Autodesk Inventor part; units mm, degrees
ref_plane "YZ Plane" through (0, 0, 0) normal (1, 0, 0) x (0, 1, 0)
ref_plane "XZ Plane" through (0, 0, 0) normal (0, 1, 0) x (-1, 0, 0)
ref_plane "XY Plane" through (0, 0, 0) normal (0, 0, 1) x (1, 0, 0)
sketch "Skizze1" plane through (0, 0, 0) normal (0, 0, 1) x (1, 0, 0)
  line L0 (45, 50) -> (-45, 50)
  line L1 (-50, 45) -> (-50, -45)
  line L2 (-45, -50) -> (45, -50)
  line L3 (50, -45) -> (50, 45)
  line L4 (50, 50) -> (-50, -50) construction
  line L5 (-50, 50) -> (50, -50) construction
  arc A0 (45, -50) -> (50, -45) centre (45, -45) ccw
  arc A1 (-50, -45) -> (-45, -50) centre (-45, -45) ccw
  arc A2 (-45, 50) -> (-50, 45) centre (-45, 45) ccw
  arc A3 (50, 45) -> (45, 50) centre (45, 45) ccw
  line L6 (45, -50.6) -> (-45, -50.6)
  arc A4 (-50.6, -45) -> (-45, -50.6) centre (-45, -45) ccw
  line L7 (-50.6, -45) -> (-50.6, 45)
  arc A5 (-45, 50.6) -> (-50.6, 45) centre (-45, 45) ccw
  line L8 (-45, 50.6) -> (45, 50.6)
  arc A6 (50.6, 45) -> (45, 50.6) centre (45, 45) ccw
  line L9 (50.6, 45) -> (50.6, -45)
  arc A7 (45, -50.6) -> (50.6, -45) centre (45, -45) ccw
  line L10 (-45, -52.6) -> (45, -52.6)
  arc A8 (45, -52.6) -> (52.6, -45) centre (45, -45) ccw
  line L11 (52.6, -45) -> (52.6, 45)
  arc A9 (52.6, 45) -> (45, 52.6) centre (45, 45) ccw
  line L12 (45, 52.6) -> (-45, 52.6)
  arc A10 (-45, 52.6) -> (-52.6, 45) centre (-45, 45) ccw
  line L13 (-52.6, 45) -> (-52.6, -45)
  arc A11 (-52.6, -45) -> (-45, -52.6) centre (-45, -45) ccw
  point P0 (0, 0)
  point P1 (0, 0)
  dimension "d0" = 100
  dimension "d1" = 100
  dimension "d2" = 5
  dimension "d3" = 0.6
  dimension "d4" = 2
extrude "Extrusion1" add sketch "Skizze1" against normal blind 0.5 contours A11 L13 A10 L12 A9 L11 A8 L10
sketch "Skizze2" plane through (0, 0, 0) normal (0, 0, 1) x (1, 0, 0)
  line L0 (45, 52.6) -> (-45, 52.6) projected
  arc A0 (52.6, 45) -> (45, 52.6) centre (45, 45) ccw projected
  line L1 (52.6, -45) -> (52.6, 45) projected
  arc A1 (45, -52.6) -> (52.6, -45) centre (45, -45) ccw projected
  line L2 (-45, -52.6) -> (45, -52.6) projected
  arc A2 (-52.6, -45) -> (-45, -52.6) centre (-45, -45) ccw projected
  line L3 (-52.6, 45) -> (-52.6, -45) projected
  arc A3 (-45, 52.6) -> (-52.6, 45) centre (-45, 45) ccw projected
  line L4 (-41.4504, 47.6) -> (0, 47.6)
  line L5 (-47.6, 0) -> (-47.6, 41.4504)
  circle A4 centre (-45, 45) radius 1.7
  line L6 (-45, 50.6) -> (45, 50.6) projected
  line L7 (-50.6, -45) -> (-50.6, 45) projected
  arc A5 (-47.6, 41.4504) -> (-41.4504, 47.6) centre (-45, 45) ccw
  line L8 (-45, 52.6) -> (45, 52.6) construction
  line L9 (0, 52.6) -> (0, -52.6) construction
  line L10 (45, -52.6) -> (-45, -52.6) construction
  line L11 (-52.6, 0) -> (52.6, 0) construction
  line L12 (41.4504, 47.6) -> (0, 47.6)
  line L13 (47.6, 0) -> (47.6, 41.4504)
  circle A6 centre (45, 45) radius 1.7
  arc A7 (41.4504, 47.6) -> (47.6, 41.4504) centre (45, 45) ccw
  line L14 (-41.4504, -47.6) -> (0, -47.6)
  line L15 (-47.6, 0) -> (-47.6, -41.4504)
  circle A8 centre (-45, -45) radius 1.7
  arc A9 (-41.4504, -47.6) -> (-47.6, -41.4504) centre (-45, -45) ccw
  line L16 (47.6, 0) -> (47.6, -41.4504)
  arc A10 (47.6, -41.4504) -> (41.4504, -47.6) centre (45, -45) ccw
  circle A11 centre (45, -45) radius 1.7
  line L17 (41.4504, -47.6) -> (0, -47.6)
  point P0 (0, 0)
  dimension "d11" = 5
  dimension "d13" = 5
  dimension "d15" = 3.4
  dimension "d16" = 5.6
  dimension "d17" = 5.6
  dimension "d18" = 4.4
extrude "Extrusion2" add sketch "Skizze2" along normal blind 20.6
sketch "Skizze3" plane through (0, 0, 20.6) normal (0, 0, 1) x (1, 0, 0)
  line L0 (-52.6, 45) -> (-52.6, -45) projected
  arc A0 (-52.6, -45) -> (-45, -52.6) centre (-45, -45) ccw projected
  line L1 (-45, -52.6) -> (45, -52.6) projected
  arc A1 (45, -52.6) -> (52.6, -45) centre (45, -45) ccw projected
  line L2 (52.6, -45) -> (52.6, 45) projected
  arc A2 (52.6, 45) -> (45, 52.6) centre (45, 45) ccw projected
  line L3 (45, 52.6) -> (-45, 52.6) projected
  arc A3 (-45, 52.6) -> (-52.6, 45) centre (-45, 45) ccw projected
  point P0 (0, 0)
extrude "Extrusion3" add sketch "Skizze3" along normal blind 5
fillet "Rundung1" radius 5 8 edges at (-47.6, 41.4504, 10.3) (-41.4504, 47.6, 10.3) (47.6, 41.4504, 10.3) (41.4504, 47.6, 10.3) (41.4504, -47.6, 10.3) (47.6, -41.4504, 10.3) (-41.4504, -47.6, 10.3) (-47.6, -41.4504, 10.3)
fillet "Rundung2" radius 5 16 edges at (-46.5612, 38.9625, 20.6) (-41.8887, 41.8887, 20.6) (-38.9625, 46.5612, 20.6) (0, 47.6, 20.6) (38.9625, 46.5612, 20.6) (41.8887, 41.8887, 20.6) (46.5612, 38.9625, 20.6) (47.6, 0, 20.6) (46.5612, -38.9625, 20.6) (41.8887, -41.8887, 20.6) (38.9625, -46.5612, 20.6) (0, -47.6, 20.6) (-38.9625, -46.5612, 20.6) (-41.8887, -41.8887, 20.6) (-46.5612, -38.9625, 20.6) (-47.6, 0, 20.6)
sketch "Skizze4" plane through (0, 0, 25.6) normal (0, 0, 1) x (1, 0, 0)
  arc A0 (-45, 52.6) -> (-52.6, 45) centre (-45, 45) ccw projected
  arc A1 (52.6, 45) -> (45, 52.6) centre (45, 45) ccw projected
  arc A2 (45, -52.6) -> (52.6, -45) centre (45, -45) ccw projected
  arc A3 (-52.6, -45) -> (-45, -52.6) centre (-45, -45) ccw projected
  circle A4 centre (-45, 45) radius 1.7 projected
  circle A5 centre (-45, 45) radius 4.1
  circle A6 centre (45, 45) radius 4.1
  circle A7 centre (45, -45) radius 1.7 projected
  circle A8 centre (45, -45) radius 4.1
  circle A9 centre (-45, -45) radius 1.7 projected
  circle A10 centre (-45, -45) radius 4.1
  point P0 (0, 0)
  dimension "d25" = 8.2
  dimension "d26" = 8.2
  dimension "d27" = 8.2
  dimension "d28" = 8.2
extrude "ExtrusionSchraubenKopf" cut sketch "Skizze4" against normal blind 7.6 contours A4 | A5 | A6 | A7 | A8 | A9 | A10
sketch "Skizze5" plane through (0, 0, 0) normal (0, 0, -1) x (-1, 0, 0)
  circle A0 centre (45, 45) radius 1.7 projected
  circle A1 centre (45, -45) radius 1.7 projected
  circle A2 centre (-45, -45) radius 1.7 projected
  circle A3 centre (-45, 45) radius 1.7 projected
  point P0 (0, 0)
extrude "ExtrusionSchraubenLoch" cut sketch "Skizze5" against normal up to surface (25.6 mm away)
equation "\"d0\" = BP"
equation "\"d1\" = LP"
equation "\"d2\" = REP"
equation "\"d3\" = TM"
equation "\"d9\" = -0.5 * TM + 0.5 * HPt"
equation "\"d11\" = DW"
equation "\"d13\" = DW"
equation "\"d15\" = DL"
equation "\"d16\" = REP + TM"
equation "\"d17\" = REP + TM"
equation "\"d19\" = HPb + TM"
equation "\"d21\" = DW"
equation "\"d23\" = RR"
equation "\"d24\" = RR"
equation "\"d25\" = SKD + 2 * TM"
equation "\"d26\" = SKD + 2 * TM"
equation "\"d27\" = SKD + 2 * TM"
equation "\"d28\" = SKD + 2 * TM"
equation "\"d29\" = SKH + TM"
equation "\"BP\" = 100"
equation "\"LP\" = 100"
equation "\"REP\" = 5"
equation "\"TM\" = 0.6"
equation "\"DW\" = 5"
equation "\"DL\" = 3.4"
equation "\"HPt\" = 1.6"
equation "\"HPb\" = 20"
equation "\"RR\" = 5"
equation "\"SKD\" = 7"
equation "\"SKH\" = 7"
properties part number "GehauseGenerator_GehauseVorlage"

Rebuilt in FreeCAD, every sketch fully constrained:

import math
import FreeCAD as App
import Part
import Sketcher


def edges_at(feature, points):
    """Names of the edges that pass closest to the given points."""
    edges = feature.Shape.Edges
    near = lambda p: min(range(len(edges)), key=lambda i: edges[i].distToShape(Part.Vertex(*p))[0])
    return sorted({f"Edge{near(p) + 1}" for p in points})

doc = App.newDocument("Part")
body = doc.addObject("PartDesign::Body", "Body")

sketch1 = body.newObject("Sketcher::SketchObject", "Sketch")
sketch1.AttachmentSupport = (doc.getObject("XY_Plane"), [""])
sketch1.MapMode = "FlatFace"
sketch1.addGeometry(Part.ArcOfCircle(Part.Circle(App.Vector(-45, -45, 0), App.Vector(0, 0, 1), 7.6), math.radians(180), math.radians(270)), False)
sketch1.addGeometry(Part.LineSegment(App.Vector(-45, -52.6, 0), App.Vector(45, -52.6, 0)), False)
sketch1.addGeometry(Part.ArcOfCircle(Part.Circle(App.Vector(45, -45, 0), App.Vector(0, 0, 1), 7.6), math.radians(-90), math.radians(0)), False)
sketch1.addGeometry(Part.LineSegment(App.Vector(52.6, -45, 0), App.Vector(52.6, 45, 0)), False)
sketch1.addGeometry(Part.ArcOfCircle(Part.Circle(App.Vector(45, 45, 0), App.Vector(0, 0, 1), 7.6), math.radians(0), math.radians(90)), False)
sketch1.addGeometry(Part.LineSegment(App.Vector(45, 52.6, 0), App.Vector(-45, 52.6, 0)), False)
sketch1.addGeometry(Part.ArcOfCircle(Part.Circle(App.Vector(-45, 45, 0), App.Vector(0, 0, 1), 7.6), math.radians(90), math.radians(180)), False)
sketch1.addGeometry(Part.LineSegment(App.Vector(-52.6, 45, 0), App.Vector(-52.6, -45, 0)), False)
sketch1.addGeometry(Part.ArcOfCircle(Part.Circle(App.Vector(45, -45, 0), App.Vector(0, 0, 1), 5.6), math.radians(-90), math.radians(0)), False)
sketch1.addGeometry(Part.LineSegment(App.Vector(45, -50.6, 0), App.Vector(-45, -50.6, 0)), False)
sketch1.addGeometry(Part.ArcOfCircle(Part.Circle(App.Vector(-45, -45, 0), App.Vector(0, 0, 1), 5.6), math.radians(180), math.radians(270)), False)
sketch1.addGeometry(Part.LineSegment(App.Vector(-50.6, -45, 0), App.Vector(-50.6, 45, 0)), False)
sketch1.addGeometry(Part.ArcOfCircle(Part.Circle(App.Vector(-45, 45, 0), App.Vector(0, 0, 1), 5.6), math.radians(90), math.radians(180)), False)
sketch1.addGeometry(Part.LineSegment(App.Vector(-45, 50.6, 0), App.Vector(45, 50.6, 0)), False)
sketch1.addGeometry(Part.ArcOfCircle(Part.Circle(App.Vector(45, 45, 0), App.Vector(0, 0, 1), 5.6), math.radians(0), math.radians(90)), False)
sketch1.addGeometry(Part.LineSegment(App.Vector(50.6, 45, 0), App.Vector(50.6, -45, 0)), False)
sketch1.addConstraint(Sketcher.Constraint("Tangent", 0, 2, 1, 1))
sketch1.addConstraint(Sketcher.Constraint("Tangent", 1, 2, 2, 1))
sketch1.addConstraint(Sketcher.Constraint("Tangent", 2, 2, 3, 1))
sketch1.addConstraint(Sketcher.Constraint("Tangent", 3, 2, 4, 1))
sketch1.addConstraint(Sketcher.Constraint("Tangent", 4, 2, 5, 1))
sketch1.addConstraint(Sketcher.Constraint("Tangent", 5, 2, 6, 1))
sketch1.addConstraint(Sketcher.Constraint("Tangent", 6, 2, 7, 1))
sketch1.addConstraint(Sketcher.Constraint("Tangent", 7, 2, 0, 1))
sketch1.addConstraint(Sketcher.Constraint("Tangent", 8, 1, 9, 1))
sketch1.addConstraint(Sketcher.Constraint("Tangent", 9, 2, 10, 2))
sketch1.addConstraint(Sketcher.Constraint("Tangent", 10, 1, 11, 1))
sketch1.addConstraint(Sketcher.Constraint("Tangent", 11, 2, 12, 2))
sketch1.addConstraint(Sketcher.Constraint("Tangent", 12, 1, 13, 1))
sketch1.addConstraint(Sketcher.Constraint("Tangent", 13, 2, 14, 2))
sketch1.addConstraint(Sketcher.Constraint("Tangent", 14, 1, 15, 1))
sketch1.addConstraint(Sketcher.Constraint("Tangent", 15, 2, 8, 2))
sketch1.addConstraint(Sketcher.Constraint("Horizontal", 1))
sketch1.addConstraint(Sketcher.Constraint("Vertical", 3))
sketch1.addConstraint(Sketcher.Constraint("Horizontal", 5))
sketch1.addConstraint(Sketcher.Constraint("Vertical", 7))
sketch1.addConstraint(Sketcher.Constraint("Horizontal", 9))
sketch1.addConstraint(Sketcher.Constraint("Vertical", 11))
sketch1.addConstraint(Sketcher.Constraint("Horizontal", 13))
sketch1.addConstraint(Sketcher.Constraint("Vertical", 15))
sketch1.addConstraint(Sketcher.Constraint("Coincident", 8, 3, 2, 3))
sketch1.addConstraint(Sketcher.Constraint("Coincident", 10, 3, 0, 3))
sketch1.addConstraint(Sketcher.Constraint("Coincident", 12, 3, 6, 3))
sketch1.addConstraint(Sketcher.Constraint("Equal", 0, 2))
sketch1.addConstraint(Sketcher.Constraint("Equal", 2, 4))
sketch1.addConstraint(Sketcher.Constraint("Equal", 4, 6))
sketch1.addConstraint(Sketcher.Constraint("Equal", 12, 14))
sketch1.addConstraint(Sketcher.Constraint("Symmetric", 0, 3, 4, 3, -1, 1))
sketch1.addConstraint(Sketcher.Constraint("Equal", 13, 3))
sketch1.addConstraint(Sketcher.Constraint("DistanceY", 1, 2, 8, 1, 2.0))
sketch1.addConstraint(Sketcher.Constraint("Radius", 0, 7.6))
sketch1.addConstraint(Sketcher.Constraint("DistanceX", 1, 1, 1, 2, 90.0))
pad1 = body.newObject("PartDesign::Pad", "Pad")
pad1.Profile = sketch1
pad1.Length = 0.5
pad1.Reversed = True

sketch2 = body.newObject("Sketcher::SketchObject", "Sketch001")
sketch2.AttachmentSupport = (doc.getObject("XY_Plane"), [""])
sketch2.MapMode = "FlatFace"
sketch2.addGeometry(Part.ArcOfCircle(Part.Circle(App.Vector(45, 45, 0), App.Vector(0, 0, 1), 7.6), math.radians(0), math.radians(90)), False)
sketch2.addGeometry(Part.LineSegment(App.Vector(45, 52.6, 0), App.Vector(-45, 52.6, 0)), False)
sketch2.addGeometry(Part.ArcOfCircle(Part.Circle(App.Vector(-45, 45, 0), App.Vector(0, 0, 1), 7.6), math.radians(90), math.radians(180)), False)
sketch2.addGeometry(Part.LineSegment(App.Vector(-52.6, 45, 0), App.Vector(-52.6, -45, 0)), False)
sketch2.addGeometry(Part.ArcOfCircle(Part.Circle(App.Vector(-45, -45, 0), App.Vector(0, 0, 1), 7.6), math.radians(180), math.radians(270)), False)
sketch2.addGeometry(Part.LineSegment(App.Vector(-45, -52.6, 0), App.Vector(45, -52.6, 0)), False)
sketch2.addGeometry(Part.ArcOfCircle(Part.Circle(App.Vector(45, -45, 0), App.Vector(0, 0, 1), 7.6), math.radians(-90), math.radians(0)), False)
sketch2.addGeometry(Part.LineSegment(App.Vector(52.6, -45, 0), App.Vector(52.6, 45, 0)), False)
sketch2.addGeometry(Part.Circle(App.Vector(-45, -45, 0), App.Vector(0, 0, 1), 1.7), False)
sketch2.addGeometry(Part.Circle(App.Vector(45, -45, 0), App.Vector(0, 0, 1), 1.7), False)
sketch2.addGeometry(Part.Circle(App.Vector(-45, 45, 0), App.Vector(0, 0, 1), 1.7), False)
sketch2.addGeometry(Part.ArcOfCircle(Part.Circle(App.Vector(-45, 45, 0), App.Vector(0, 0, 1), 4.399961), math.radians(-126.221915), math.radians(36.221915)), False)
sketch2.addGeometry(Part.LineSegment(App.Vector(-41.4504, 47.6, 0), App.Vector(41.4504, 47.6, 0)), False)
sketch2.addGeometry(Part.ArcOfCircle(Part.Circle(App.Vector(45, 45, 0), App.Vector(0, 0, 1), 4.399961), math.radians(143.778085), math.radians(306.221915)), False)
sketch2.addGeometry(Part.LineSegment(App.Vector(47.6, 41.4504, 0), App.Vector(47.6, -41.4504, 0)), False)
sketch2.addGeometry(Part.ArcOfCircle(Part.Circle(App.Vector(45, -45, 0), App.Vector(0, 0, 1), 4.399961), math.radians(53.778085), math.radians(216.221915)), False)
sketch2.addGeometry(Part.LineSegment(App.Vector(41.4504, -47.6, 0), App.Vector(-41.4504, -47.6, 0)), False)
sketch2.addGeometry(Part.ArcOfCircle(Part.Circle(App.Vector(-45, -45, 0), App.Vector(0, 0, 1), 4.399961), math.radians(-36.221915), math.radians(126.221915)), False)
sketch2.addGeometry(Part.LineSegment(App.Vector(-47.6, -41.4504, 0), App.Vector(-47.6, 41.4504, 0)), False)
sketch2.addGeometry(Part.Circle(App.Vector(45, 45, 0), App.Vector(0, 0, 1), 1.7), False)
sketch2.addConstraint(Sketcher.Constraint("Tangent", 0, 2, 1, 1))
sketch2.addConstraint(Sketcher.Constraint("Tangent", 1, 2, 2, 1))
sketch2.addConstraint(Sketcher.Constraint("Tangent", 2, 2, 3, 1))
sketch2.addConstraint(Sketcher.Constraint("Tangent", 3, 2, 4, 1))
sketch2.addConstraint(Sketcher.Constraint("Tangent", 4, 2, 5, 1))
sketch2.addConstraint(Sketcher.Constraint("Tangent", 5, 2, 6, 1))
sketch2.addConstraint(Sketcher.Constraint("Tangent", 6, 2, 7, 1))
sketch2.addConstraint(Sketcher.Constraint("Tangent", 7, 2, 0, 1))
sketch2.addConstraint(Sketcher.Constraint("Coincident", 11, 2, 12, 1))
sketch2.addConstraint(Sketcher.Constraint("Coincident", 12, 2, 13, 1))
sketch2.addConstraint(Sketcher.Constraint("Coincident", 13, 2, 14, 1))
sketch2.addConstraint(Sketcher.Constraint("Coincident", 14, 2, 15, 1))
sketch2.addConstraint(Sketcher.Constraint("Coincident", 15, 2, 16, 1))
sketch2.addConstraint(Sketcher.Constraint("Coincident", 16, 2, 17, 1))
sketch2.addConstraint(Sketcher.Constraint("Coincident", 17, 2, 18, 1))
sketch2.addConstraint(Sketcher.Constraint("Coincident", 18, 2, 11, 1))
sketch2.addConstraint(Sketcher.Constraint("Horizontal", 1))
sketch2.addConstraint(Sketcher.Constraint("Vertical", 3))
sketch2.addConstraint(Sketcher.Constraint("Horizontal", 5))
sketch2.addConstraint(Sketcher.Constraint("Vertical", 7))
sketch2.addConstraint(Sketcher.Constraint("Horizontal", 12))
sketch2.addConstraint(Sketcher.Constraint("Vertical", 14))
sketch2.addConstraint(Sketcher.Constraint("Horizontal", 16))
sketch2.addConstraint(Sketcher.Constraint("Vertical", 18))
sketch2.addConstraint(Sketcher.Constraint("Coincident", 8, 3, 4, 3))
sketch2.addConstraint(Sketcher.Constraint("Coincident", 9, 3, 6, 3))
sketch2.addConstraint(Sketcher.Constraint("Coincident", 10, 3, 2, 3))
sketch2.addConstraint(Sketcher.Constraint("Coincident", 11, 3, 2, 3))
sketch2.addConstraint(Sketcher.Constraint("Coincident", 13, 3, 0, 3))
sketch2.addConstraint(Sketcher.Constraint("Coincident", 15, 3, 6, 3))
sketch2.addConstraint(Sketcher.Constraint("Coincident", 17, 3, 4, 3))
sketch2.addConstraint(Sketcher.Constraint("Coincident", 19, 3, 0, 3))
sketch2.addConstraint(Sketcher.Constraint("Equal", 0, 2))
sketch2.addConstraint(Sketcher.Constraint("Equal", 2, 4))
sketch2.addConstraint(Sketcher.Constraint("Equal", 4, 6))
sketch2.addConstraint(Sketcher.Constraint("Equal", 8, 9))
sketch2.addConstraint(Sketcher.Constraint("Equal", 9, 10))
sketch2.addConstraint(Sketcher.Constraint("Equal", 11, 13))
sketch2.addConstraint(Sketcher.Constraint("Equal", 13, 15))
sketch2.addConstraint(Sketcher.Constraint("Equal", 15, 17))
sketch2.addConstraint(Sketcher.Constraint("Equal", 10, 19))
sketch2.addConstraint(Sketcher.Constraint("Symmetric", 0, 3, 4, 3, -1, 1))
sketch2.addConstraint(Sketcher.Constraint("Horizontal", 14, 2, 17, 2))
sketch2.addConstraint(Sketcher.Constraint("Vertical", 12, 2, 15, 2))
sketch2.addConstraint(Sketcher.Constraint("Equal", 5, 3))
sketch2.addConstraint(Sketcher.Constraint("Equal", 16, 14))
sketch2.addConstraint(Sketcher.Constraint("Diameter", 8, 3.4))
sketch2.addConstraint(Sketcher.Constraint("Radius", 11, 4.4))
sketch2.addConstraint(Sketcher.Constraint("DistanceY", 11, 2, 1, 2, 5.0))
sketch2.addConstraint(Sketcher.Constraint("Radius", 0, 7.6))
sketch2.addConstraint(Sketcher.Constraint("DistanceX", 1, 2, 1, 1, 90.0))
pad2 = body.newObject("PartDesign::Pad", "Pad001")
pad2.Profile = sketch2
pad2.Length = 20.6

sketch3 = body.newObject("Sketcher::SketchObject", "Sketch002")
sketch3.AttachmentSupport = (doc.getObject("XY_Plane"), [""])
sketch3.MapMode = "FlatFace"
sketch3.AttachmentOffset = App.Placement(App.Vector(0, 0, 20.6), App.Rotation())
sketch3.addGeometry(Part.ArcOfCircle(Part.Circle(App.Vector(-45, 45, 0), App.Vector(0, 0, 1), 7.6), math.radians(90), math.radians(180)), False)
sketch3.addGeometry(Part.LineSegment(App.Vector(-52.6, 45, 0), App.Vector(-52.6, -45, 0)), False)
sketch3.addGeometry(Part.ArcOfCircle(Part.Circle(App.Vector(-45, -45, 0), App.Vector(0, 0, 1), 7.6), math.radians(180), math.radians(270)), False)
sketch3.addGeometry(Part.LineSegment(App.Vector(-45, -52.6, 0), App.Vector(45, -52.6, 0)), False)
sketch3.addGeometry(Part.ArcOfCircle(Part.Circle(App.Vector(45, -45, 0), App.Vector(0, 0, 1), 7.6), math.radians(-90), math.radians(0)), False)
sketch3.addGeometry(Part.LineSegment(App.Vector(52.6, -45, 0), App.Vector(52.6, 45, 0)), False)
sketch3.addGeometry(Part.ArcOfCircle(Part.Circle(App.Vector(45, 45, 0), App.Vector(0, 0, 1), 7.6), math.radians(0), math.radians(90)), False)
sketch3.addGeometry(Part.LineSegment(App.Vector(45, 52.6, 0), App.Vector(-45, 52.6, 0)), False)
sketch3.addConstraint(Sketcher.Constraint("Tangent", 0, 2, 1, 1))
sketch3.addConstraint(Sketcher.Constraint("Tangent", 1, 2, 2, 1))
sketch3.addConstraint(Sketcher.Constraint("Tangent", 2, 2, 3, 1))
sketch3.addConstraint(Sketcher.Constraint("Tangent", 3, 2, 4, 1))
sketch3.addConstraint(Sketcher.Constraint("Tangent", 4, 2, 5, 1))
sketch3.addConstraint(Sketcher.Constraint("Tangent", 5, 2, 6, 1))
sketch3.addConstraint(Sketcher.Constraint("Tangent", 6, 2, 7, 1))
sketch3.addConstraint(Sketcher.Constraint("Tangent", 7, 2, 0, 1))
sketch3.addConstraint(Sketcher.Constraint("Vertical", 1))
sketch3.addConstraint(Sketcher.Constraint("Horizontal", 3))
sketch3.addConstraint(Sketcher.Constraint("Vertical", 5))
sketch3.addConstraint(Sketcher.Constraint("Horizontal", 7))
sketch3.addConstraint(Sketcher.Constraint("Equal", 0, 2))
sketch3.addConstraint(Sketcher.Constraint("Equal", 2, 4))
sketch3.addConstraint(Sketcher.Constraint("Equal", 4, 6))
sketch3.addConstraint(Sketcher.Constraint("Symmetric", 0, 3, 4, 3, -1, 1))
sketch3.addConstraint(Sketcher.Constraint("Equal", 7, 1))
sketch3.addConstraint(Sketcher.Constraint("Radius", 0, 7.6))
sketch3.addConstraint(Sketcher.Constraint("DistanceX", 3, 1, 3, 2, 90.0))
pad3 = body.newObject("PartDesign::Pad", "Pad002")
pad3.Profile = sketch3
pad3.Length = 5
doc.recompute()

fillet = body.newObject("PartDesign::Fillet", "Fillet")
fillet.Base = (pad3, edges_at(pad3, [
    (-47.6, 41.45, 10.3),
    (-41.45, 47.6, 10.3),
    (47.6, 41.45, 10.3),
    (41.45, 47.6, 10.3),
    (41.45, -47.6, 10.3),
    (47.6, -41.45, 10.3),
    (-41.45, -47.6, 10.3),
    (-47.6, -41.45, 10.3),
]))
fillet.Radius = 5
doc.recompute()

fillet2 = body.newObject("PartDesign::Fillet", "Fillet001")
fillet2.Base = (fillet, edges_at(fillet, [
    (-46.561, 38.962, 20.6),
    (-41.889, 41.889, 20.6),
    (-38.962, 46.561, 20.6),
    (0, 47.6, 20.6),
    (38.962, 46.561, 20.6),
    (41.889, 41.889, 20.6),
    (46.561, 38.962, 20.6),
    (47.6, 0, 20.6),
    (46.561, -38.962, 20.6),
    (41.889, -41.889, 20.6),
    (38.962, -46.561, 20.6),
    (0, -47.6, 20.6),
    (-38.962, -46.561, 20.6),
    (-41.889, -41.889, 20.6),
    (-46.561, -38.962, 20.6),
    (-47.6, 0, 20.6),
]))
fillet2.Radius = 5

sketch4 = body.newObject("Sketcher::SketchObject", "Sketch003")
sketch4.AttachmentSupport = (doc.getObject("XY_Plane"), [""])
sketch4.MapMode = "FlatFace"
sketch4.AttachmentOffset = App.Placement(App.Vector(0, 0, 25.6), App.Rotation())
sketch4.addGeometry(Part.Circle(App.Vector(-45, 45, 0), App.Vector(0, 0, 1), 4.1), False)
sketch4.addGeometry(Part.Circle(App.Vector(45, 45, 0), App.Vector(0, 0, 1), 4.1), False)
sketch4.addGeometry(Part.Circle(App.Vector(45, -45, 0), App.Vector(0, 0, 1), 4.1), False)
sketch4.addGeometry(Part.Circle(App.Vector(-45, -45, 0), App.Vector(0, 0, 1), 4.1), False)
sketch4.addConstraint(Sketcher.Constraint("Equal", 0, 1))
sketch4.addConstraint(Sketcher.Constraint("Equal", 1, 2))
sketch4.addConstraint(Sketcher.Constraint("Equal", 2, 3))
sketch4.addConstraint(Sketcher.Constraint("Symmetric", 0, 3, 2, 3, -1, 1))
sketch4.addConstraint(Sketcher.Constraint("Symmetric", 1, 3, 3, 3, -1, 1))
sketch4.addConstraint(Sketcher.Constraint("Symmetric", 0, 3, 1, 3, -2))
sketch4.addConstraint(Sketcher.Constraint("Diameter", 0, 8.2))
sketch4.addConstraint(Sketcher.Constraint("DistanceX", 0, 3, -1, 1, 45.0))
sketch4.addConstraint(Sketcher.Constraint("DistanceY", -1, 1, 0, 3, 45.0))
pocket1 = body.newObject("PartDesign::Pocket", "Pocket")
pocket1.Profile = sketch4
pocket1.Length = 7.6

sketch5 = body.newObject("Sketcher::SketchObject", "Sketch004")
sketch5.AttachmentSupport = (doc.getObject("XY_Plane"), [""])
sketch5.MapMode = "FlatFace"
sketch5.addGeometry(Part.Circle(App.Vector(-45, 45, 0), App.Vector(0, 0, 1), 1.7), False)
sketch5.addGeometry(Part.Circle(App.Vector(-45, -45, 0), App.Vector(0, 0, 1), 1.7), False)
sketch5.addGeometry(Part.Circle(App.Vector(45, -45, 0), App.Vector(0, 0, 1), 1.7), False)
sketch5.addGeometry(Part.Circle(App.Vector(45, 45, 0), App.Vector(0, 0, 1), 1.7), False)
sketch5.addConstraint(Sketcher.Constraint("Equal", 0, 1))
sketch5.addConstraint(Sketcher.Constraint("Equal", 1, 2))
sketch5.addConstraint(Sketcher.Constraint("Equal", 2, 3))
sketch5.addConstraint(Sketcher.Constraint("Symmetric", 0, 3, 2, 3, -1, 1))
sketch5.addConstraint(Sketcher.Constraint("Symmetric", 1, 3, 3, 3, -1, 1))
sketch5.addConstraint(Sketcher.Constraint("Symmetric", 1, 3, 2, 3, -2))
sketch5.addConstraint(Sketcher.Constraint("Diameter", 0, 3.4))
sketch5.addConstraint(Sketcher.Constraint("DistanceX", 0, 3, -1, 1, 45.0))
sketch5.addConstraint(Sketcher.Constraint("DistanceY", -1, 1, 0, 3, 45.0))
pocket2 = body.newObject("PartDesign::Pocket", "Pocket001")
pocket2.Profile = sketch5
pocket2.Length = 25.6
pocket2.Reversed = True

doc.recompute()
